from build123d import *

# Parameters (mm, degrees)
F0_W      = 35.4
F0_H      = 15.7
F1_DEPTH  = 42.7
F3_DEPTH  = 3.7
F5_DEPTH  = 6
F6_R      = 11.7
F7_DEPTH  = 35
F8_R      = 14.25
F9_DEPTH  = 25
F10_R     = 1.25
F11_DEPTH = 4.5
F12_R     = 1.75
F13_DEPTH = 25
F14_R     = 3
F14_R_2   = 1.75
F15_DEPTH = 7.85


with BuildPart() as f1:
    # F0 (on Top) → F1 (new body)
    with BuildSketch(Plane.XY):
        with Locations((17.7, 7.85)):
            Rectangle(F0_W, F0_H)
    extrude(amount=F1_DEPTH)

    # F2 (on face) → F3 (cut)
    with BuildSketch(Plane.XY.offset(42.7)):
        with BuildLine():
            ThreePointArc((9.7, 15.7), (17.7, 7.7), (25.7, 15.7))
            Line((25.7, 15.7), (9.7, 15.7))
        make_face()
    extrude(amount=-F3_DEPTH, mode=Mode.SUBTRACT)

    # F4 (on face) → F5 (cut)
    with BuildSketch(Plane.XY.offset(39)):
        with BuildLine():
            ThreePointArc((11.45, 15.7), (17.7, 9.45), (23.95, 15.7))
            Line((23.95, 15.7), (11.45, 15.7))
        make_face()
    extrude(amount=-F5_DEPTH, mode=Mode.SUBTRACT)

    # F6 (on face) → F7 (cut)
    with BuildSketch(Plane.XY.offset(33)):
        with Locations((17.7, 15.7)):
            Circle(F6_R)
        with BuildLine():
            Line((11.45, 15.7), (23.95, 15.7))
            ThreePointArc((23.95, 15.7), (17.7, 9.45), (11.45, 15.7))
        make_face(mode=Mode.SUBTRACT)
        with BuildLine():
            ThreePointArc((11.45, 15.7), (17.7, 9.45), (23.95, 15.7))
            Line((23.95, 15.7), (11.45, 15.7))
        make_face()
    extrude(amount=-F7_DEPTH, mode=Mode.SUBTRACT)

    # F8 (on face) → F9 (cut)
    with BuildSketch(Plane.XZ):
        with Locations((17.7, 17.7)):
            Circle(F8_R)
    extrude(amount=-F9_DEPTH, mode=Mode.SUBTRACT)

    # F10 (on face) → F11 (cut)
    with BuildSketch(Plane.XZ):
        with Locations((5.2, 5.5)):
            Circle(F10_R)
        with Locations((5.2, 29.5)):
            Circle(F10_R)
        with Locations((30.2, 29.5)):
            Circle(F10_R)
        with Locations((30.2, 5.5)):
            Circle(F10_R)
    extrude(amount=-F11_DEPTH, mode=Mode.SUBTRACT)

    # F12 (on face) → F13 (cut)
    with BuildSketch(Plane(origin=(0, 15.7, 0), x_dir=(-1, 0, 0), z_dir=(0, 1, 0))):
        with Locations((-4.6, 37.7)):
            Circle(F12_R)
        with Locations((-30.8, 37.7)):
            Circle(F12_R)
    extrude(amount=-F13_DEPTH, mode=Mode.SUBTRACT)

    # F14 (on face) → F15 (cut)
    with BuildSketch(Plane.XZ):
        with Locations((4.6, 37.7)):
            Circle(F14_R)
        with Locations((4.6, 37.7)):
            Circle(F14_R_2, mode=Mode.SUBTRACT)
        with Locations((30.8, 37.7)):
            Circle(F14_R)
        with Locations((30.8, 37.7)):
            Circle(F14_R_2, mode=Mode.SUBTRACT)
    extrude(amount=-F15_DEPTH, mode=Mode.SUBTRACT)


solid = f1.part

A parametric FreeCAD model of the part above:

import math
import FreeCAD as App
import Part
import Sketcher
from FreeCAD import Vector


def add_polygon(sketch, points):
    """Adds a closed chain of lines whose ends are joined by coincident constraints."""
    first, n = sketch.GeometryCount, len(points)
    for a, b in zip(points, points[1:] + points[:1]):
        sketch.addGeometry(Part.LineSegment(App.Vector(*a, 0), App.Vector(*b, 0)), False)
    for i in range(n):
        sketch.addConstraint(Sketcher.Constraint("Coincident", first + i, 2, first + (i + 1) % n, 1))

doc = App.newDocument("Part")
params = doc.addObject("Spreadsheet::Sheet", "Params")
for row, (alias, value) in enumerate([
    ("sketch1_width", "35.4 mm"),
    ("sketch1_height", "15.7 mm"),
    ("pad1_length", "42.7 mm"),
    ("sketch2_radius", "8 mm"),
    ("pocket1_length", "3.7 mm"),
    ("sketch3_radius", "6.25 mm"),
    ("pocket2_length", "6 mm"),
    ("sketch4_diameter", "23.4 mm"),
    ("pocket3_length", "35 mm"),
    ("sketch5_diameter", "28.5 mm"),
    ("pocket4_length", "25 mm"),
    ("sketch6_diameter", "2.5 mm"),
    ("pocket5_length", "4.5 mm"),
    ("sketch7_diameter", "3.5 mm"),
    ("pocket6_length", "25 mm"),
    ("sketch8_diameter", "6 mm"),
    ("sketch8_diameter2", "3.5 mm"),
    ("pocket7_length", "7.85 mm"),
], start=1):
    params.set(f"A{row}", alias)
    params.set(f"B{row}", "=" + value)
    params.setAlias(f"B{row}", alias)

body = doc.addObject("PartDesign::Body", "Body")

sketch1 = body.newObject("Sketcher::SketchObject", "Sketch")
sketch1.AttachmentSupport = (doc.getObject("XY_Plane"), [""])
sketch1.MapMode = "FlatFace"
add_polygon(sketch1, [(0, 15.7), (0, 0), (35.4, 0), (35.4, 15.7)])
sketch1.addConstraint([
    Sketcher.Constraint("Vertical", 0),
    Sketcher.Constraint("Horizontal", 1),
    Sketcher.Constraint("Vertical", 2),
    Sketcher.Constraint("Horizontal", 3),
    Sketcher.Constraint("Coincident", 0, 2, -1, 1),
    Sketcher.Constraint("DistanceX", 1, 1, 1, 2, 35.4),
    Sketcher.Constraint("DistanceY", 0, 2, 0, 1, 15.7),
])
sketch1.setExpression("Constraints[9]", "Params.sketch1_width")
sketch1.setExpression("Constraints[10]", "Params.sketch1_height")
pad1 = body.newObject("PartDesign::Pad", "Pad")
pad1.Profile = sketch1
pad1.setExpression("Length", "Params.pad1_length")

sketch2 = body.newObject("Sketcher::SketchObject", "Sketch001")
sketch2.AttachmentSupport = (doc.getObject("XY_Plane"), [""])
sketch2.MapMode = "FlatFace"
sketch2.AttachmentOffset = App.Placement(Vector(0, 0, 42.7), App.Rotation())
sketch2.addGeometry([
    Part.ArcOfCircle(Part.Circle(Vector(17.7, 15.7, 0), Vector(0, 0, 1), 8), math.radians(180), math.radians(360)),
    Part.LineSegment(Vector(25.7, 15.7, 0), Vector(9.7, 15.7, 0)),
], False)
sketch2.addConstraint([
    Sketcher.Constraint("Coincident", 0, 1, 1, 2),
    Sketcher.Constraint("Coincident", 1, 1, 0, 2),
    Sketcher.Constraint("Horizontal", 1),
    Sketcher.Constraint("Radius", 0, 8.0),
    Sketcher.Constraint("DistanceX", -1, 1, 0, 3, 17.7),
    Sketcher.Constraint("DistanceY", -1, 1, 0, 3, 15.7),
    Sketcher.Constraint("DistanceY", -1, 1, 0, 1, 15.7),
])
sketch2.setExpression("Constraints[3]", "Params.sketch2_radius")
pocket1 = body.newObject("PartDesign::Pocket", "Pocket")
pocket1.Profile = sketch2
pocket1.setExpression("Length", "Params.pocket1_length")

sketch3 = body.newObject("Sketcher::SketchObject", "Sketch002")
sketch3.AttachmentSupport = (doc.getObject("XY_Plane"), [""])
sketch3.MapMode = "FlatFace"
sketch3.AttachmentOffset = App.Placement(Vector(0, 0, 39), App.Rotation())
sketch3.addGeometry([
    Part.ArcOfCircle(Part.Circle(Vector(17.7, 15.7, 0), Vector(0, 0, 1), 6.25), math.radians(180), math.radians(360)),
    Part.LineSegment(Vector(23.95, 15.7, 0), Vector(11.45, 15.7, 0)),
], False)
sketch3.addConstraint([
    Sketcher.Constraint("Coincident", 0, 1, 1, 2),
    Sketcher.Constraint("Coincident", 1, 1, 0, 2),
    Sketcher.Constraint("Horizontal", 1),
    Sketcher.Constraint("Radius", 0, 6.25),
    Sketcher.Constraint("DistanceX", -1, 1, 0, 3, 17.7),
    Sketcher.Constraint("DistanceY", -1, 1, 0, 3, 15.7),
    Sketcher.Constraint("DistanceY", -1, 1, 0, 1, 15.7),
])
sketch3.setExpression("Constraints[3]", "Params.sketch3_radius")
pocket2 = body.newObject("PartDesign::Pocket", "Pocket001")
pocket2.Profile = sketch3
pocket2.setExpression("Length", "Params.pocket2_length")

sketch4 = body.newObject("Sketcher::SketchObject", "Sketch003")
sketch4.AttachmentSupport = (doc.getObject("XY_Plane"), [""])
sketch4.MapMode = "FlatFace"
sketch4.AttachmentOffset = App.Placement(Vector(0, 0, 33), App.Rotation())
sketch4.addGeometry(Part.Circle(Vector(17.7, 15.7, 0), Vector(0, 0, 1), 11.7), False)
sketch4.addConstraint([
    Sketcher.Constraint("Diameter", 0, 23.4),
    Sketcher.Constraint("DistanceX", -1, 1, 0, 3, 17.7),
    Sketcher.Constraint("DistanceY", -1, 1, 0, 3, 15.7),
])
sketch4.setExpression("Constraints[0]", "Params.sketch4_diameter")
pocket3 = body.newObject("PartDesign::Pocket", "Pocket002")
pocket3.Profile = sketch4
pocket3.setExpression("Length", "Params.pocket3_length")

sketch5 = body.newObject("Sketcher::SketchObject", "Sketch004")
sketch5.AttachmentSupport = (doc.getObject("XZ_Plane"), [""])
sketch5.MapMode = "FlatFace"
sketch5.addGeometry(Part.Circle(Vector(17.7, 17.7, 0), Vector(0, 0, 1), 14.25), False)
sketch5.addConstraint([
    Sketcher.Constraint("Diameter", 0, 28.5),
    Sketcher.Constraint("DistanceX", -1, 1, 0, 3, 17.7),
    Sketcher.Constraint("DistanceY", -1, 1, 0, 3, 17.7),
])
sketch5.setExpression("Constraints[0]", "Params.sketch5_diameter")
pocket4 = body.newObject("PartDesign::Pocket", "Pocket003")
pocket4.Profile = sketch5
pocket4.setExpression("Length", "Params.pocket4_length")

sketch6 = body.newObject("Sketcher::SketchObject", "Sketch005")
sketch6.AttachmentSupport = (doc.getObject("XZ_Plane"), [""])
sketch6.MapMode = "FlatFace"
sketch6.addGeometry([
    Part.Circle(Vector(5.2, 5.5, 0), Vector(0, 0, 1), 1.25),
    Part.Circle(Vector(5.2, 29.5, 0), Vector(0, 0, 1), 1.25),
    Part.Circle(Vector(30.2, 29.5, 0), Vector(0, 0, 1), 1.25),
    Part.Circle(Vector(30.2, 5.5, 0), Vector(0, 0, 1), 1.25),
], False)
sketch6.addConstraint([
    Sketcher.Constraint("Equal", 0, 1),
    Sketcher.Constraint("Equal", 1, 2),
    Sketcher.Constraint("Equal", 2, 3),
    Sketcher.Constraint("Horizontal", 1, 3, 2, 3),
    Sketcher.Constraint("Horizontal", 0, 3, 3, 3),
    Sketcher.Constraint("Vertical", 0, 3, 1, 3),
    Sketcher.Constraint("Vertical", 2, 3, 3, 3),
    Sketcher.Constraint("Diameter", 0, 2.5),
    Sketcher.Constraint("DistanceY", 0, 3, 1, 3, 24.0),
    Sketcher.Constraint("DistanceX", 1, 3, 2, 3, 25.0),
    Sketcher.Constraint("DistanceX", -1, 1, 0, 3, 5.2),
    Sketcher.Constraint("DistanceY", -1, 1, 0, 3, 5.5),
])
sketch6.setExpression("Constraints[7]", "Params.sketch6_diameter")
pocket5 = body.newObject("PartDesign::Pocket", "Pocket004")
pocket5.Profile = sketch6
pocket5.setExpression("Length", "Params.pocket5_length")

sketch7 = body.newObject("Sketcher::SketchObject", "Sketch006")
sketch7.AttachmentSupport = (doc.getObject("XZ_Plane"), [""])
sketch7.MapMode = "FlatFace"
sketch7.AttachmentOffset = App.Placement(Vector(0, 0, -15.7), App.Rotation())
sketch7.addGeometry([
    Part.Circle(Vector(4.6, 37.7, 0), Vector(0, 0, 1), 1.75),
    Part.Circle(Vector(30.8, 37.7, 0), Vector(0, 0, 1), 1.75),
], False)
sketch7.addConstraint([
    Sketcher.Constraint("Equal", 0, 1),
    Sketcher.Constraint("Horizontal", 0, 3, 1, 3),
    Sketcher.Constraint("Diameter", 0, 3.5),
    Sketcher.Constraint("DistanceX", -1, 1, 0, 3, 4.6),
    Sketcher.Constraint("DistanceY", -1, 1, 0, 3, 37.7),
    Sketcher.Constraint("DistanceX", -1, 1, 1, 3, 30.8),
])
sketch7.setExpression("Constraints[2]", "Params.sketch7_diameter")
pocket6 = body.newObject("PartDesign::Pocket", "Pocket005")
pocket6.Profile = sketch7
pocket6.setExpression("Length", "Params.pocket6_length")
pocket6.Reversed = True

sketch8 = body.newObject("Sketcher::SketchObject", "Sketch007")
sketch8.AttachmentSupport = (doc.getObject("XZ_Plane"), [""])
sketch8.MapMode = "FlatFace"
sketch8.addGeometry([
    Part.Circle(Vector(4.6, 37.7, 0), Vector(0, 0, 1), 3),
    Part.Circle(Vector(4.6, 37.7, 0), Vector(0, 0, 1), 1.75),
    Part.Circle(Vector(30.8, 37.7, 0), Vector(0, 0, 1), 3),
    Part.Circle(Vector(30.8, 37.7, 0), Vector(0, 0, 1), 1.75),
], False)
sketch8.addConstraint([
    Sketcher.Constraint("Coincident", 1, 3, 0, 3),
    Sketcher.Constraint("Coincident", 3, 3, 2, 3),
    Sketcher.Constraint("Equal", 0, 2),
    Sketcher.Constraint("Equal", 1, 3),
    Sketcher.Constraint("Horizontal", 1, 3, 2, 3),
    Sketcher.Constraint("Diameter", 0, 6.0),
    Sketcher.Constraint("Diameter", 1, 3.5),
    Sketcher.Constraint("DistanceX", -1, 1, 0, 3, 4.6),
    Sketcher.Constraint("DistanceY", -1, 1, 0, 3, 37.7),
    Sketcher.Constraint("DistanceX", -1, 1, 2, 3, 30.8),
])
sketch8.setExpression("Constraints[5]", "Params.sketch8_diameter")
sketch8.setExpression("Constraints[6]", "Params.sketch8_diameter2")
pocket7 = body.newObject("PartDesign::Pocket", "Pocket006")
pocket7.Profile = sketch8
pocket7.setExpression("Length", "Params.pocket7_length")

doc.recompute()
